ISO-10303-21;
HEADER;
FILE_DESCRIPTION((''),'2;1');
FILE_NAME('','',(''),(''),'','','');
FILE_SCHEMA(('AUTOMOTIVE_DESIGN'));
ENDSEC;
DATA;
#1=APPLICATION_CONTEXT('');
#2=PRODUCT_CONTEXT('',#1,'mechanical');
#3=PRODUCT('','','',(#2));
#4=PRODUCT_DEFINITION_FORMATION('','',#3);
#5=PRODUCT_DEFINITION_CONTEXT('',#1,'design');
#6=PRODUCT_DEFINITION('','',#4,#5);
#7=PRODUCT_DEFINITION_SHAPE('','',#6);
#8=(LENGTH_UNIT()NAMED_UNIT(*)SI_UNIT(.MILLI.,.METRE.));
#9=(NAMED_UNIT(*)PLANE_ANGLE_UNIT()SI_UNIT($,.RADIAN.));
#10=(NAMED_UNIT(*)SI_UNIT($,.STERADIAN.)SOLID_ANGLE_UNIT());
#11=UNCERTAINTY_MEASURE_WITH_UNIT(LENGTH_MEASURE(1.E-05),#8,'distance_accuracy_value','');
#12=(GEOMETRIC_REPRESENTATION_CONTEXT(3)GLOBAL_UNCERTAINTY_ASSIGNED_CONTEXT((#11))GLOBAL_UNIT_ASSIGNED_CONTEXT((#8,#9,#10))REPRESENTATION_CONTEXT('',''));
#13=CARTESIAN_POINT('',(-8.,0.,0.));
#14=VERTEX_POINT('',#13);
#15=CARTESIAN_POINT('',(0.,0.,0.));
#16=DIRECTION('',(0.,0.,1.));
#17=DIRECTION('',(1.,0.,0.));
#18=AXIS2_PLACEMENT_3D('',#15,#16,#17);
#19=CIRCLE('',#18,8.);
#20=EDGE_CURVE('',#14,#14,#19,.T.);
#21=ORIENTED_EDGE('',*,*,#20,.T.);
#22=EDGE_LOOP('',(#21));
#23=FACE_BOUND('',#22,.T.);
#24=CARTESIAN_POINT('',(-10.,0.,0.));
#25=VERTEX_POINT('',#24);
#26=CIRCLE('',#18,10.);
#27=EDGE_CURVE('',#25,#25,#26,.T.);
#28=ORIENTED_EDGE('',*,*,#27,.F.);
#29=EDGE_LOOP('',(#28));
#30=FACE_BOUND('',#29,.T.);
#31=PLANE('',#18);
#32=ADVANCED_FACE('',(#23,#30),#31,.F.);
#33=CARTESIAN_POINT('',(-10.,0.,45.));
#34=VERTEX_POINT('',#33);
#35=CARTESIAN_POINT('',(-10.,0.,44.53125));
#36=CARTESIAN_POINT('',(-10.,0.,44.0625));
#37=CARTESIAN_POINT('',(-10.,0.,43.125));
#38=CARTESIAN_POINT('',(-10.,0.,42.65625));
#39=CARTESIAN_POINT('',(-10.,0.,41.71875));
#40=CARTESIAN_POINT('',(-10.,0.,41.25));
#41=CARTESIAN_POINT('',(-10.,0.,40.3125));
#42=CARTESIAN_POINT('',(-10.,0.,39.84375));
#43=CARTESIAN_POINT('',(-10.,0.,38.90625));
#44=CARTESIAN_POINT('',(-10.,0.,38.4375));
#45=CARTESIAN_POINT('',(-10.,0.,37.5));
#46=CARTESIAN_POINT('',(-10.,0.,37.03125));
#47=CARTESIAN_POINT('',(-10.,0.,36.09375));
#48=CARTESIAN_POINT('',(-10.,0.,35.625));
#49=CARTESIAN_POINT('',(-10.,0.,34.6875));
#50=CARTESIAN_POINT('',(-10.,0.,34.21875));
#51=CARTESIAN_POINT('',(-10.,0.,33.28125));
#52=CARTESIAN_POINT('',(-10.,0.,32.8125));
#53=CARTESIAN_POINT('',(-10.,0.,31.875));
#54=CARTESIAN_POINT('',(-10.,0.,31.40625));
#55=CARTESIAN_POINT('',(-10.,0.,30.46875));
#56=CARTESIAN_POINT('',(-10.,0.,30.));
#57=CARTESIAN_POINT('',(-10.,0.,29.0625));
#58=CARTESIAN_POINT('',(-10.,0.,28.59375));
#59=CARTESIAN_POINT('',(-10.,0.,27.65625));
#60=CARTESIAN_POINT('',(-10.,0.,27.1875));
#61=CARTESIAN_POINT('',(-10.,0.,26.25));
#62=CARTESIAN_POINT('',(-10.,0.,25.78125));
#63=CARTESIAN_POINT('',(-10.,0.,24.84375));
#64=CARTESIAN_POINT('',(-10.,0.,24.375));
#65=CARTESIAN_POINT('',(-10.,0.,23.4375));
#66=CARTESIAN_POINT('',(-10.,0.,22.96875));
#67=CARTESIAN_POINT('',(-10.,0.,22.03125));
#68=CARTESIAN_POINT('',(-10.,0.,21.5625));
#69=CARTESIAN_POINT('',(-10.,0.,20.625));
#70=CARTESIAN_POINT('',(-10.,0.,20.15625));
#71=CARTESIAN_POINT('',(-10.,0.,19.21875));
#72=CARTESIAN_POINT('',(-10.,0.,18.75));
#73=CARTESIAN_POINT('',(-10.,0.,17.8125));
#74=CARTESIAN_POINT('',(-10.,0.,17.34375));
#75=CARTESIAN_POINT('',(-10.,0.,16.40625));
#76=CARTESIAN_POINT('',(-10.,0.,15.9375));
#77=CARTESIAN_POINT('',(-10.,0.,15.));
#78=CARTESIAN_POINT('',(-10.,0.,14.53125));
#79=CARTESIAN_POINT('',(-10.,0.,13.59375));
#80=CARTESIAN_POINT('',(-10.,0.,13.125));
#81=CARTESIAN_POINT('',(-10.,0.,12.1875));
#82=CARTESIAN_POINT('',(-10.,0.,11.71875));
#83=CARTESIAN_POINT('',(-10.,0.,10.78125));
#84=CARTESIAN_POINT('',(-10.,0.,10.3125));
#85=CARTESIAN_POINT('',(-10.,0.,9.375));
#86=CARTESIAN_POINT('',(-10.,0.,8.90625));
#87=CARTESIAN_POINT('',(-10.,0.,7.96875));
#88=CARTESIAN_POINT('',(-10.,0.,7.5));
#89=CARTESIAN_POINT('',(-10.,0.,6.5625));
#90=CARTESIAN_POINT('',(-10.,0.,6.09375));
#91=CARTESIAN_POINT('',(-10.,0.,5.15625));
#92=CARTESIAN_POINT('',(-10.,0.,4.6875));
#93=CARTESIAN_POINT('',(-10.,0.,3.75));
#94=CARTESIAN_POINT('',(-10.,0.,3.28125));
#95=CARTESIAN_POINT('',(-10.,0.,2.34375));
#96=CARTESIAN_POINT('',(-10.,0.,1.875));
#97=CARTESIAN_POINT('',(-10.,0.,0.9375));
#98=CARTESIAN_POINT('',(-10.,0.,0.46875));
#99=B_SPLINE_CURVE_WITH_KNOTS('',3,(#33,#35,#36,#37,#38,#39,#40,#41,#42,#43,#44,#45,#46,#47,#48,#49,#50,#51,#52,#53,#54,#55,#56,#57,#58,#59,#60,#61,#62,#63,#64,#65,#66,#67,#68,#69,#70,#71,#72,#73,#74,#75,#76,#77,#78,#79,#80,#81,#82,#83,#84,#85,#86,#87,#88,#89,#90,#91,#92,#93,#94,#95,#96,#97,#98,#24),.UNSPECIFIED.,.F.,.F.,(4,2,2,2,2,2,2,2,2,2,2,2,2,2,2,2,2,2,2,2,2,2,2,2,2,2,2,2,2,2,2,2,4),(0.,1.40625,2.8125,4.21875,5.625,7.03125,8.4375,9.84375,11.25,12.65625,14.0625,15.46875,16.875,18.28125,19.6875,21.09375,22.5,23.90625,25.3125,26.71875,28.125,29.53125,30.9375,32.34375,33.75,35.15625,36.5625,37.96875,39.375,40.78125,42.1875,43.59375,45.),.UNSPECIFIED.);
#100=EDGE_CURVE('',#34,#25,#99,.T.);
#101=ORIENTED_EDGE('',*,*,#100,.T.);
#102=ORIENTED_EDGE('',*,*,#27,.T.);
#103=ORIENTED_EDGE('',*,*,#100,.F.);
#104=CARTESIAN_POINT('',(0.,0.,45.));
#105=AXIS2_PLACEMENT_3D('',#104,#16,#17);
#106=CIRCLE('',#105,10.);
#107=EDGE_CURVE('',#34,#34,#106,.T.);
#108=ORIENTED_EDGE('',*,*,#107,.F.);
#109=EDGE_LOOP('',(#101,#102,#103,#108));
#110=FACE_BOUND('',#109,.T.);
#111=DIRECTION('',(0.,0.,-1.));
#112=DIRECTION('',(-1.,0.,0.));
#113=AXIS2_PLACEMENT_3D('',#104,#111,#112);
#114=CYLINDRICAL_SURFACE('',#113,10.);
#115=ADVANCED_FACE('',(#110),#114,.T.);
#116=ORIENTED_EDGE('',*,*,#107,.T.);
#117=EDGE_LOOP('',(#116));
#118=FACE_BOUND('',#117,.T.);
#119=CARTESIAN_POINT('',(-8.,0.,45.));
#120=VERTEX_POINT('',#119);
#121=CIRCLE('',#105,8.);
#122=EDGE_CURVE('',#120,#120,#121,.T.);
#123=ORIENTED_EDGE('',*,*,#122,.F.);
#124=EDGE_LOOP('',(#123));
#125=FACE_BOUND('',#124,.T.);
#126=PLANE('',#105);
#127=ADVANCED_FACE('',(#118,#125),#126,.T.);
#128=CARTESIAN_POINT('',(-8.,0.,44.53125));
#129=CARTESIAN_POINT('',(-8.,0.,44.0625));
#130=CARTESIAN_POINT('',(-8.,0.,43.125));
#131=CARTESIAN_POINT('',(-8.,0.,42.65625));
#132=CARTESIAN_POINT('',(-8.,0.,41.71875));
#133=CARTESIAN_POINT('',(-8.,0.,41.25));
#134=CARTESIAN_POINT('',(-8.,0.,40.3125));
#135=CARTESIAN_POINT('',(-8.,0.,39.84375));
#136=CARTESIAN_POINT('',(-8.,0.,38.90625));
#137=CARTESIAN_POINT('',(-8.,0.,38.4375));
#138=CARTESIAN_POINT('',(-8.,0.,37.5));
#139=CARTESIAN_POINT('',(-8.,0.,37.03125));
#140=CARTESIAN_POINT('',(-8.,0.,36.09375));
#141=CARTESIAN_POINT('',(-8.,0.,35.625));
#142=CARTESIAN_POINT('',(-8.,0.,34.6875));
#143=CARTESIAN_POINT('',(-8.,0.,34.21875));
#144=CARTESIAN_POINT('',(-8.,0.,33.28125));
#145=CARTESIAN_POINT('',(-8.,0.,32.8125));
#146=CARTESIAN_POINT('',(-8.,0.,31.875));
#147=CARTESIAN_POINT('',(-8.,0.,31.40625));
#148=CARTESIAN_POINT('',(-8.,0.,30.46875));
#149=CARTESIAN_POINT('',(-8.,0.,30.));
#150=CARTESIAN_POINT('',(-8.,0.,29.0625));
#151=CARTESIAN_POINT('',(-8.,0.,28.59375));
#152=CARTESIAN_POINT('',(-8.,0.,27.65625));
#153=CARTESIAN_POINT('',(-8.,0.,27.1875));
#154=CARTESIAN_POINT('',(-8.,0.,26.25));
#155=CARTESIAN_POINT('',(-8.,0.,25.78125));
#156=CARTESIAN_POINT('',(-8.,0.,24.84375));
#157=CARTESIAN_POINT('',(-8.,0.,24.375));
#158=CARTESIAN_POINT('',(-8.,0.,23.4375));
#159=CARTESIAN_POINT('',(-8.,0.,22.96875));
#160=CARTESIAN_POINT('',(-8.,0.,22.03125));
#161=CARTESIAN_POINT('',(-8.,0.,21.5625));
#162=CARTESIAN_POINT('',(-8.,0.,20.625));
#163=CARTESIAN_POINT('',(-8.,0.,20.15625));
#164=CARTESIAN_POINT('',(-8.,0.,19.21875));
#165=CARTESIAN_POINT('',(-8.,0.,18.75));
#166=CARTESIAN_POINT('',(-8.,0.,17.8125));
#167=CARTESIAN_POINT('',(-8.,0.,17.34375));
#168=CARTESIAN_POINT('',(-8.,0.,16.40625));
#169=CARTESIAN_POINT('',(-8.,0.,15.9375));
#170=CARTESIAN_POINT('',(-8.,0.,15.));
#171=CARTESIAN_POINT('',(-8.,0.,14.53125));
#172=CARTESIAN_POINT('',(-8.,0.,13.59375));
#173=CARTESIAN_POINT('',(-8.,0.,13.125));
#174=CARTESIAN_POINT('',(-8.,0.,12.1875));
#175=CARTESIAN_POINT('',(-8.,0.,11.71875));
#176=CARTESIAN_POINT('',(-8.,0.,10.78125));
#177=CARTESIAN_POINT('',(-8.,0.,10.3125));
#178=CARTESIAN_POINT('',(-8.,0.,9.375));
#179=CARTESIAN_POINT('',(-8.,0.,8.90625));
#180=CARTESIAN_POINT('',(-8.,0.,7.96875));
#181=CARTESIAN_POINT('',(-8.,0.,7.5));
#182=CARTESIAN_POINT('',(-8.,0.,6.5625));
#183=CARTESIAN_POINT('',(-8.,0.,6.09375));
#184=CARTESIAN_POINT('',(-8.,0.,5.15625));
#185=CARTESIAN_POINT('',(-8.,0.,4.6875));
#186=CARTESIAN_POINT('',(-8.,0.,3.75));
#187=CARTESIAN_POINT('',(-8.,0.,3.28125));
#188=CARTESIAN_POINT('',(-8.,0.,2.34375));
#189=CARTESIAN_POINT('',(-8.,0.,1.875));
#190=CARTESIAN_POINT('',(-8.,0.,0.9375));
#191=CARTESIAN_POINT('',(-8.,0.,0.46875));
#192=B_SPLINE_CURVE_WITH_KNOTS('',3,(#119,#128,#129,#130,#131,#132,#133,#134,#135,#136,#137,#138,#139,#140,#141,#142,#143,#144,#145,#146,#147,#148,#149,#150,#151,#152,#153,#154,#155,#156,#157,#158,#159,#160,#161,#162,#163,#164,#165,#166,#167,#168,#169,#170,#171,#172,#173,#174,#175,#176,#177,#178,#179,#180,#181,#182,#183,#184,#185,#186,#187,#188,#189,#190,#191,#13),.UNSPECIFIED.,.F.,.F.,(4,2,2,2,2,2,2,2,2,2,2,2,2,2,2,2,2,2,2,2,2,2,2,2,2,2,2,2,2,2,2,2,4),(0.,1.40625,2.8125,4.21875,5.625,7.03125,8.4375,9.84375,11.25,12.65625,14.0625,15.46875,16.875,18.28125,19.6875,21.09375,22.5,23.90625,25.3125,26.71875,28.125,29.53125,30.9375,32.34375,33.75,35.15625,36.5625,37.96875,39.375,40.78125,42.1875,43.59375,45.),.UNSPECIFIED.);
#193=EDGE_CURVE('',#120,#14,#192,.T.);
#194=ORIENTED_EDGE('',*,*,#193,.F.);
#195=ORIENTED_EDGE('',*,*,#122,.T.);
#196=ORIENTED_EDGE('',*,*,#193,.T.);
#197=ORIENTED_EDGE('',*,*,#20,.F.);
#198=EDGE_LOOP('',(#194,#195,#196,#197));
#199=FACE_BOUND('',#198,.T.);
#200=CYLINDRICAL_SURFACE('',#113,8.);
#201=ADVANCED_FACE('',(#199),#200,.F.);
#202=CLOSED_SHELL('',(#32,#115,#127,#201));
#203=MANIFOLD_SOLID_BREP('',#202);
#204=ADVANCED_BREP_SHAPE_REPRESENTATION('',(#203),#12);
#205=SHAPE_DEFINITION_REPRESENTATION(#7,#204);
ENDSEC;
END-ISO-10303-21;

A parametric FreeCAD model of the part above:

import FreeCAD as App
import Part
import Sketcher

V = App.Vector

doc = App.newDocument("Part")
body = doc.addObject("PartDesign::Body", "Body")

# Sketch on XY plane
sketch1 = doc.addObject("Sketcher::SketchObject", "Sketch")
body.addObject(sketch1)
sketch1.AttachmentSupport = (doc.XY_Plane, [""])
sketch1.MapMode = "FlatFace"
sketch1.addGeometry([
    Part.Circle(V(0, 0, 0), V(0, 0, 1), 10),
    Part.Circle(V(0, 0, 0), V(0, 0, 1), 8),
], False)
sketch1.addConstraint([
    Sketcher.Constraint("Coincident", 0, 3, -1, 1),
    Sketcher.Constraint("Coincident", 1, 3, -1, 1),
    Sketcher.Constraint("Diameter", 0, 20.0),
    Sketcher.Constraint("Diameter", 1, 16.0),
])
pad1 = doc.addObject("PartDesign::Pad", "Pad")
body.addObject(pad1)
pad1.Profile = sketch1
pad1.Length = 45

doc.recompute()
